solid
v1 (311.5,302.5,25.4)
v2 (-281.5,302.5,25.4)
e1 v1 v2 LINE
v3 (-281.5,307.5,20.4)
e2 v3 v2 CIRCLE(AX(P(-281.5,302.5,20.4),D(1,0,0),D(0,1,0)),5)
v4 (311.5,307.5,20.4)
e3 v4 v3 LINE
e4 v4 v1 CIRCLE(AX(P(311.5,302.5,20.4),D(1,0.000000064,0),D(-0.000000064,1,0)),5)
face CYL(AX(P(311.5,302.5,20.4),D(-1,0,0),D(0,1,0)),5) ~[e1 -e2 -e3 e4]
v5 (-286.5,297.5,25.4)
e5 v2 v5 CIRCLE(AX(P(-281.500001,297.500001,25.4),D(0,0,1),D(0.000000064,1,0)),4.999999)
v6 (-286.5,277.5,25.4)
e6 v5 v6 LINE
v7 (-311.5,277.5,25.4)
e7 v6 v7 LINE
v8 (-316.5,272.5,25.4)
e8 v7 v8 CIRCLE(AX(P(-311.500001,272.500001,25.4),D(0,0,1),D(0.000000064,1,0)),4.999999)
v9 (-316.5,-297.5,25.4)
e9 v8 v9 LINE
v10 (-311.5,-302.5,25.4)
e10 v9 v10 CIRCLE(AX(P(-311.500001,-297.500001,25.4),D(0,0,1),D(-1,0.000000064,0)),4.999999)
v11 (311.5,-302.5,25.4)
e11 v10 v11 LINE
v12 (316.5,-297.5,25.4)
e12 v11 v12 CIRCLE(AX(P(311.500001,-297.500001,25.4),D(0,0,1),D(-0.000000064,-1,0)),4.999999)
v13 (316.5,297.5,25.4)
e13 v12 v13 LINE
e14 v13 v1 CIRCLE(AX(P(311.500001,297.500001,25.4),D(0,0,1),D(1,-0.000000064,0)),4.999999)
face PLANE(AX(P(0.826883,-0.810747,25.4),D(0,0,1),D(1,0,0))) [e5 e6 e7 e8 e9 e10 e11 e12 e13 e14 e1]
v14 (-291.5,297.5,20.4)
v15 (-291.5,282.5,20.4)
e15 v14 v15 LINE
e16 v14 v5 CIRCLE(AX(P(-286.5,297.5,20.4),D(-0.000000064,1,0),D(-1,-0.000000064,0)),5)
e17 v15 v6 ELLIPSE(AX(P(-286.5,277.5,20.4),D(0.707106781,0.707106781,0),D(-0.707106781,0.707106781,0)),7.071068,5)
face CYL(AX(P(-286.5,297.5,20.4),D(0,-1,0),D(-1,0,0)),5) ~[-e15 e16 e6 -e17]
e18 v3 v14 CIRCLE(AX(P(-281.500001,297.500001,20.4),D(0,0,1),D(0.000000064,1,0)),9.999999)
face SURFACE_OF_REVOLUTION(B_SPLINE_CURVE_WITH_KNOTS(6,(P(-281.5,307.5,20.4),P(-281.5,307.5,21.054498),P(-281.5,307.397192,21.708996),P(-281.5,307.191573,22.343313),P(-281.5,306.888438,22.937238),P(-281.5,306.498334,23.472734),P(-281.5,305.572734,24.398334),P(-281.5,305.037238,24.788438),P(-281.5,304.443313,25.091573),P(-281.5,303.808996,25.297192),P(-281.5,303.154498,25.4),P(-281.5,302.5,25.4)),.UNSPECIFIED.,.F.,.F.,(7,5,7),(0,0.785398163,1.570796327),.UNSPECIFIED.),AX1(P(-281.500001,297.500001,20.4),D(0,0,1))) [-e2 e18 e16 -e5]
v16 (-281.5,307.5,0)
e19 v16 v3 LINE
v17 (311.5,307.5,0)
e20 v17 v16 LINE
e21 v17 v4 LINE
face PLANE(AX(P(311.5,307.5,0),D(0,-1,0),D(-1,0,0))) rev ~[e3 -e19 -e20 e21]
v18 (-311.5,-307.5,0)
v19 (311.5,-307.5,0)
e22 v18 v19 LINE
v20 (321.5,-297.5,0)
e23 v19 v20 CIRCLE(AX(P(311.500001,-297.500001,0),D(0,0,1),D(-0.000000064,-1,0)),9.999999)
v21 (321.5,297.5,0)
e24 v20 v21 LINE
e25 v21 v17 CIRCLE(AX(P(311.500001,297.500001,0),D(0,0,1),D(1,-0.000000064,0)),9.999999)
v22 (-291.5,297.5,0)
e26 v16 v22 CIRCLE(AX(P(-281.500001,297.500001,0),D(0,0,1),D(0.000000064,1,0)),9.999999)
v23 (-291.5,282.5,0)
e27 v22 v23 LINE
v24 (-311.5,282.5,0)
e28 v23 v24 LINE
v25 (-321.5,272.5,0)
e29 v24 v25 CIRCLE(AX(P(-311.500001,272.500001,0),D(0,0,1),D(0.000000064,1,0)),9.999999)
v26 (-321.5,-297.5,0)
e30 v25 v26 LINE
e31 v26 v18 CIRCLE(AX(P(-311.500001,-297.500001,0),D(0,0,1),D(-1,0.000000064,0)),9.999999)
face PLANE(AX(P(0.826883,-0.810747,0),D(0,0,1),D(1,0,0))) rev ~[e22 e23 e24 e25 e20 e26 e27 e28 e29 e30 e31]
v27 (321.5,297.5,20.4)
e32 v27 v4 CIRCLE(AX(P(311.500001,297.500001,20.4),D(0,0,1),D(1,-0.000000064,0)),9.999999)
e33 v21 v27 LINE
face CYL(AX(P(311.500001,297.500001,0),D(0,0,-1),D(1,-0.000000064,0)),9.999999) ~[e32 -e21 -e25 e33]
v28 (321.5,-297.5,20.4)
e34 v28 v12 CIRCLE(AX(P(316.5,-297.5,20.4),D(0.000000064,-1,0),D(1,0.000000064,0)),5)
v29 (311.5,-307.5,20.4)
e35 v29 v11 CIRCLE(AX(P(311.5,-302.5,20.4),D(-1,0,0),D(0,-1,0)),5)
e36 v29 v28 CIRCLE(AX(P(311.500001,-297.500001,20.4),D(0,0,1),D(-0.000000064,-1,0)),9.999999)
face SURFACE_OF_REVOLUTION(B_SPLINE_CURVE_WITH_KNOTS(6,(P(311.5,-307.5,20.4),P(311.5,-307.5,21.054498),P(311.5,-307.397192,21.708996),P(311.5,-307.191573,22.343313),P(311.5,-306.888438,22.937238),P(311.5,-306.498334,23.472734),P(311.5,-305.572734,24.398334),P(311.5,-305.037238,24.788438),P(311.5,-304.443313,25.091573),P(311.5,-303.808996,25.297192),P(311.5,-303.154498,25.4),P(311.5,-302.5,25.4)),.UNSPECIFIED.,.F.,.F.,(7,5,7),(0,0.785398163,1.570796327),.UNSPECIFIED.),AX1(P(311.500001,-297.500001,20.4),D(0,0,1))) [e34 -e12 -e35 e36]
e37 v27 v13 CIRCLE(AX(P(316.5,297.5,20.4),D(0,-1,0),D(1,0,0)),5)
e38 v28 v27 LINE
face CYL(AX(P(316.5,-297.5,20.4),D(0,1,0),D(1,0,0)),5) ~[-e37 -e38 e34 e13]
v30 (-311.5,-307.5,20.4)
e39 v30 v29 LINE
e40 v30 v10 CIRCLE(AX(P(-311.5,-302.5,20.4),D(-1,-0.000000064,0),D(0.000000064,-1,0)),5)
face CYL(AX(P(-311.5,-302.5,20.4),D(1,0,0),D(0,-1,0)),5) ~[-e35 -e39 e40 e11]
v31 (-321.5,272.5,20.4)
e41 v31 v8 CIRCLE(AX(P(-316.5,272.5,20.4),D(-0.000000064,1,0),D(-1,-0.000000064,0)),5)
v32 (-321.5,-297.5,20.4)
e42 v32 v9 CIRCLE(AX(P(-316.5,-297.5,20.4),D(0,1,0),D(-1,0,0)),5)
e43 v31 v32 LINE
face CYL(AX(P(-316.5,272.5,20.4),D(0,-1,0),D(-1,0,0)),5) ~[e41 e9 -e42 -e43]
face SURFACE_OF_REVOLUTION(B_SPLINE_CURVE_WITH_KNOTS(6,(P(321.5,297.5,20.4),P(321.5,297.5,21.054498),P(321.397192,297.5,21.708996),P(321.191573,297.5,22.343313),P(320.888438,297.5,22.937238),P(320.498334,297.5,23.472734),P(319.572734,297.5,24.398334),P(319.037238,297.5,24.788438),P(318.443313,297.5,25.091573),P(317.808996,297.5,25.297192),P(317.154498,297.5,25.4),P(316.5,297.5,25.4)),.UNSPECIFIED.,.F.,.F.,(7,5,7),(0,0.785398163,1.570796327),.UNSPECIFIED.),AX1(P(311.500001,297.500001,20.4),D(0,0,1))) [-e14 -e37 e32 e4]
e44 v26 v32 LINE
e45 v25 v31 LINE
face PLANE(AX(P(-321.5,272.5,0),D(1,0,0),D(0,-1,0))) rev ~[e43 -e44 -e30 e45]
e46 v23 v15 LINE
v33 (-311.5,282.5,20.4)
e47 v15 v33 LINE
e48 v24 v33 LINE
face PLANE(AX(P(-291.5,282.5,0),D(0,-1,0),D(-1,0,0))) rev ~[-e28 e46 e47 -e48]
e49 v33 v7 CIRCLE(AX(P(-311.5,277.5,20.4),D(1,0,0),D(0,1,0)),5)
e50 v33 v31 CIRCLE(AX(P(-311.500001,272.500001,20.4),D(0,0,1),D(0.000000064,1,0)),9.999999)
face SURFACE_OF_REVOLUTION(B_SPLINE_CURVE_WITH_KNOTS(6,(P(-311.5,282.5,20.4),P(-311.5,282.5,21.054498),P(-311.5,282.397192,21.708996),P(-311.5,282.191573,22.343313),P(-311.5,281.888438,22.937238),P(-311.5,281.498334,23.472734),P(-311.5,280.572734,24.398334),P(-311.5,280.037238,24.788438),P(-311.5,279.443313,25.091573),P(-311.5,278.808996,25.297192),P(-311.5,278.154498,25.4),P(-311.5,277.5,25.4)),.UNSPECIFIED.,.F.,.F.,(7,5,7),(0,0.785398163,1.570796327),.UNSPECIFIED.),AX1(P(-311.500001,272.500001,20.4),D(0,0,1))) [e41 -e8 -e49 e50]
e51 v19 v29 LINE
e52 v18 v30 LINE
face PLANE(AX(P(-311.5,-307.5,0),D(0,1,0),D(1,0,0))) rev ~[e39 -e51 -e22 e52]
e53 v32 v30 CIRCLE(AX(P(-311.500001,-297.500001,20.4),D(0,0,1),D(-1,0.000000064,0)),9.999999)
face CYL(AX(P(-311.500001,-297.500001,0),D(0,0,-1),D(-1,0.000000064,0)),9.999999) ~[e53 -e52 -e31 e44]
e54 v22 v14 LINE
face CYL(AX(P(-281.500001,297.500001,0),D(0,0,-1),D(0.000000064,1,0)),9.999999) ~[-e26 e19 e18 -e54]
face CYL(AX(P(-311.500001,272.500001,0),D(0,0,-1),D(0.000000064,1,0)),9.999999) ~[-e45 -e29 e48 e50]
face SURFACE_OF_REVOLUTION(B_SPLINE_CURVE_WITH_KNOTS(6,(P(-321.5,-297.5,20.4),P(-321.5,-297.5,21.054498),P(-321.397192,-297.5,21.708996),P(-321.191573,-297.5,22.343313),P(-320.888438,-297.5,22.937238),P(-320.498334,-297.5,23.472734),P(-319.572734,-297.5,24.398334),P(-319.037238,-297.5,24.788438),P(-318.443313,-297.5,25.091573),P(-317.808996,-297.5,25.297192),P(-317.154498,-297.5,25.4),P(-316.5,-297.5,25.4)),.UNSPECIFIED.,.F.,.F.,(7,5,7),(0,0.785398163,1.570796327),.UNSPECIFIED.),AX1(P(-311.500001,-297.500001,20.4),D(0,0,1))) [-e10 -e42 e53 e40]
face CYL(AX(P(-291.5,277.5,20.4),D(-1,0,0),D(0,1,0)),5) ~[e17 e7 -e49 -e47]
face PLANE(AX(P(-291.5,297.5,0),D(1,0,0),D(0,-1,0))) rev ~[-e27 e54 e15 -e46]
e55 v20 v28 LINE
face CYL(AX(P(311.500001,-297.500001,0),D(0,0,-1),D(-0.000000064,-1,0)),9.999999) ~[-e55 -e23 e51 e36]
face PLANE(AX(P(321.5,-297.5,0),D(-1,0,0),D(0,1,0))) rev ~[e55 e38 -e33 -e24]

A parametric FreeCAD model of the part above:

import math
import FreeCAD as App
import Part
import Sketcher
from FreeCAD import Vector


def edges_at(feature, points):
    """Names of the edges that pass closest to the given points."""
    edges = feature.Shape.Edges
    near = lambda p: min(range(len(edges)), key=lambda i: edges[i].distToShape(Part.Vertex(*p))[0])
    return sorted({f"Edge{near(p) + 1}" for p in points})

doc = App.newDocument("Part")
body = doc.addObject("PartDesign::Body", "Body")

sketch1 = doc.addObject("Sketcher::SketchObject", "Sketch")
body.addObject(sketch1)
sketch1.AttachmentSupport = (doc.XY_Plane, [""])
sketch1.MapMode = "FlatFace"
sketch1.addGeometry(Part.LineSegment(Vector(312, 308, 0), Vector(-282, 308, 0)), False)
sketch1.addGeometry(Part.ArcOfCircle(Part.Circle(Vector(-282, 298, 0), Vector(0, 0, 1), 10), math.radians(90), math.radians(180)), False)
sketch1.addGeometry(Part.LineSegment(Vector(-292, 298, 0), Vector(-292, 282, 0)), False)
sketch1.addGeometry(Part.LineSegment(Vector(-292, 282, 0), Vector(-312, 282, 0)), False)
sketch1.addGeometry(Part.ArcOfCircle(Part.Circle(Vector(-312, 273, 0), Vector(0, 0, 1), 10), math.radians(90), math.radians(180)), False)
sketch1.addGeometry(Part.LineSegment(Vector(-322, 272, 0), Vector(-322, -298, 0)), False)
sketch1.addGeometry(Part.ArcOfCircle(Part.Circle(Vector(-312, -298, 0), Vector(0, 0, 1), 10), math.radians(180), math.radians(270)), False)
sketch1.addGeometry(Part.LineSegment(Vector(-312, -308, 0), Vector(312, -308, 0)), False)
sketch1.addGeometry(Part.ArcOfCircle(Part.Circle(Vector(312, -298, 0), Vector(0, 0, 1), 10), math.radians(-90), math.radians(0)), False)
sketch1.addGeometry(Part.LineSegment(Vector(322, -298, 0), Vector(322, 298, 0)), False)
sketch1.addGeometry(Part.ArcOfCircle(Part.Circle(Vector(312, 298, 0), Vector(0, 0, 1), 10), math.radians(0), math.radians(90)), False)
sketch1.addConstraint(Sketcher.Constraint("Tangent", 0, 2, 1, 1))
sketch1.addConstraint(Sketcher.Constraint("Tangent", 1, 2, 2, 1))
sketch1.addConstraint(Sketcher.Constraint("Coincident", 2, 2, 3, 1))
sketch1.addConstraint(Sketcher.Constraint("Tangent", 3, 2, 4, 1))
sketch1.addConstraint(Sketcher.Constraint("Tangent", 4, 2, 5, 1))
sketch1.addConstraint(Sketcher.Constraint("Tangent", 5, 2, 6, 1))
sketch1.addConstraint(Sketcher.Constraint("Tangent", 6, 2, 7, 1))
sketch1.addConstraint(Sketcher.Constraint("Tangent", 7, 2, 8, 1))
sketch1.addConstraint(Sketcher.Constraint("Tangent", 8, 2, 9, 1))
sketch1.addConstraint(Sketcher.Constraint("Tangent", 9, 2, 10, 1))
sketch1.addConstraint(Sketcher.Constraint("Tangent", 10, 2, 0, 1))
sketch1.addConstraint(Sketcher.Constraint("Horizontal", 0))
sketch1.addConstraint(Sketcher.Constraint("Vertical", 2))
sketch1.addConstraint(Sketcher.Constraint("Horizontal", 3))
sketch1.addConstraint(Sketcher.Constraint("Vertical", 5))
sketch1.addConstraint(Sketcher.Constraint("Horizontal", 7))
sketch1.addConstraint(Sketcher.Constraint("Vertical", 9))
sketch1.addConstraint(Sketcher.Constraint("Equal", 1, 4))
sketch1.addConstraint(Sketcher.Constraint("Equal", 4, 6))
sketch1.addConstraint(Sketcher.Constraint("Equal", 6, 8))
sketch1.addConstraint(Sketcher.Constraint("Equal", 8, 10))
sketch1.addConstraint(Sketcher.Constraint("Symmetric", 6, 3, 10, 3, -1, 1))
sketch1.addConstraint(Sketcher.Constraint("Radius", 1, 9.999999))
sketch1.addConstraint(Sketcher.Constraint("DistanceX", 0, 2, 0, 1, 593.0))
sketch1.addConstraint(Sketcher.Constraint("DistanceX", 3, 2, 3, 1, 20.0))
sketch1.addConstraint(Sketcher.Constraint("DistanceY", 2, 2, 2, 1, 15.0))
sketch1.addConstraint(Sketcher.Constraint("DistanceY", 5, 2, 5, 1, 570.0))
pad1 = doc.addObject("PartDesign::Pad", "Pad")
body.addObject(pad1)
pad1.Profile = sketch1
pad1.Length = 25.4
doc.recompute()

fillet = doc.addObject("PartDesign::Fillet", "Fillet")
body.addObject(fillet)
fillet.Base = (pad1, edges_at(pad1, [(-321.5, -12.5, 25.4)]))
fillet.Radius = 5

doc.recompute()
